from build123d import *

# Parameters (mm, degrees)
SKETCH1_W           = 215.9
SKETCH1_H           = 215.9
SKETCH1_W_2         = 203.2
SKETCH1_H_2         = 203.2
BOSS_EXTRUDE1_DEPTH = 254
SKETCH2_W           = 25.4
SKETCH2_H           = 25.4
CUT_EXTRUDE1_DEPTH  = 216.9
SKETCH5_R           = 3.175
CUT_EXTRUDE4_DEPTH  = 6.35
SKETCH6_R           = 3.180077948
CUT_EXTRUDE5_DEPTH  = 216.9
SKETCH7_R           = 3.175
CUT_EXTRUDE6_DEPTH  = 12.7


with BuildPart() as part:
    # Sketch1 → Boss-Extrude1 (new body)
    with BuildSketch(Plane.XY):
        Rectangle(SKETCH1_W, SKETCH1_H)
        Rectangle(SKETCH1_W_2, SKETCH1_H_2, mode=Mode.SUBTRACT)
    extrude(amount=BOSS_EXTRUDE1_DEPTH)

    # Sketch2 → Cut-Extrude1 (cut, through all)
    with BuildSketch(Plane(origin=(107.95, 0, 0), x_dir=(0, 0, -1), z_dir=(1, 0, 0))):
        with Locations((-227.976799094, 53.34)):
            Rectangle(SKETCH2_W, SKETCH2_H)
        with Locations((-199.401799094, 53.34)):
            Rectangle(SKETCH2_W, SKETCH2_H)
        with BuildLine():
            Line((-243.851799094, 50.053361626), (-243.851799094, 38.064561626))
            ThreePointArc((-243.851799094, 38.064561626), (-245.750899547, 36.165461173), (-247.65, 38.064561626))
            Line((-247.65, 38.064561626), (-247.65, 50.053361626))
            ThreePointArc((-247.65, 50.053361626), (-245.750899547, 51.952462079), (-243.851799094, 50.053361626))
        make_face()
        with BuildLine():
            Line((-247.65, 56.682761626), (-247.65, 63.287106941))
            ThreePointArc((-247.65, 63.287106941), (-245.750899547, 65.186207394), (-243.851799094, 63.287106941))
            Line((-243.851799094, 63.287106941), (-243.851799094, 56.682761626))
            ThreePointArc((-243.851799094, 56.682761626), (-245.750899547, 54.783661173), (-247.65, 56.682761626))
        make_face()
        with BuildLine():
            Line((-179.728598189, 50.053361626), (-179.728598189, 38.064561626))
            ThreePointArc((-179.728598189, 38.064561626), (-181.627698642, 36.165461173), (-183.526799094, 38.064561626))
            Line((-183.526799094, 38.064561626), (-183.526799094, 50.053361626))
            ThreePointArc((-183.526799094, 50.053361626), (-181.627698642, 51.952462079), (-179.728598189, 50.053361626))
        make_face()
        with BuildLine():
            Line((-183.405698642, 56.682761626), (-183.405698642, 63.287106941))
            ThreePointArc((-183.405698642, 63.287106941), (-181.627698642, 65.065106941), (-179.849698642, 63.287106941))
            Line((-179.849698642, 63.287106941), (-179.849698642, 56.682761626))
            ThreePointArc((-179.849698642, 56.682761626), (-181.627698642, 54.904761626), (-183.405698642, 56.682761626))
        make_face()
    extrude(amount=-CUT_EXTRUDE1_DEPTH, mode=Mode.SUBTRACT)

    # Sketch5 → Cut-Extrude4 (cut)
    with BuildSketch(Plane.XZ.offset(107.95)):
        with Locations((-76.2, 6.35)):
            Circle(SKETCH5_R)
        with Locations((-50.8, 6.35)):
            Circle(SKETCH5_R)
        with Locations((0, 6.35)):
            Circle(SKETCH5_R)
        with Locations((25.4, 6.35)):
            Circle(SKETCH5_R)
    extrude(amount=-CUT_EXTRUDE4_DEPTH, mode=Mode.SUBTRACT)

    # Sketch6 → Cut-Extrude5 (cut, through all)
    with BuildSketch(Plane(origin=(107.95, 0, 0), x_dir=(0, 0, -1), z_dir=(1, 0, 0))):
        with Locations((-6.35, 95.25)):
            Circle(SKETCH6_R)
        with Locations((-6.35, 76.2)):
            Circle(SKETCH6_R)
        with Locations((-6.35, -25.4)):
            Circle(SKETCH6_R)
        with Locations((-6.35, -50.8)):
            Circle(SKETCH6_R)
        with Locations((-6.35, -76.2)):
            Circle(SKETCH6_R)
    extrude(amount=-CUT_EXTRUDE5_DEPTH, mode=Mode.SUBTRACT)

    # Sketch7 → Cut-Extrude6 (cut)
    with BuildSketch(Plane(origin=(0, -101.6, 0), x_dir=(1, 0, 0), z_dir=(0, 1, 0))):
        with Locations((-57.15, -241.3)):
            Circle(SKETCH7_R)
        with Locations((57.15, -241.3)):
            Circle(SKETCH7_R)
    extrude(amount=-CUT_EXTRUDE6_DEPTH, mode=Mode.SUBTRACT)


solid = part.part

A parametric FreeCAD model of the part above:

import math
import FreeCAD as App
import Part
import Sketcher
from FreeCAD import Vector
Q = App.Units.Quantity


def add_polygon(sketch, points):
    """Adds a closed chain of lines whose ends are joined by coincident constraints."""
    first, n = sketch.GeometryCount, len(points)
    for a, b in zip(points, points[1:] + points[:1]):
        sketch.addGeometry(Part.LineSegment(App.Vector(*a, 0), App.Vector(*b, 0)), False)
    for i in range(n):
        sketch.addConstraint(Sketcher.Constraint("Coincident", first + i, 2, first + (i + 1) % n, 1))

doc = App.newDocument("Part")
body = doc.addObject("PartDesign::Body", "Body")

# Sketch on XY plane
sketch1 = doc.addObject("Sketcher::SketchObject", "Sketch")
body.addObject(sketch1)
sketch1.AttachmentSupport = (doc.XY_Plane, [""])
sketch1.MapMode = "FlatFace"
add_polygon(sketch1, [(-107.95, 107.95), (-107.95, -107.95), (107.95, -107.95), (107.95, 107.95)])  # lines 0-3
add_polygon(sketch1, [(101.6, -101.6), (-101.6, -101.6), (-101.6, 101.6), (101.6, 101.6)])  # lines 4-7
sketch1.addConstraint([
    Sketcher.Constraint("Vertical", 0),
    Sketcher.Constraint("Horizontal", 1),
    Sketcher.Constraint("Vertical", 2),
    Sketcher.Constraint("Horizontal", 3),
    Sketcher.Constraint("Horizontal", 4),
    Sketcher.Constraint("Vertical", 5),
    Sketcher.Constraint("Horizontal", 6),
    Sketcher.Constraint("Vertical", 7),
    Sketcher.Constraint("Symmetric", 0, 2, 2, 2, -1, 1),
    Sketcher.Constraint("Symmetric", 4, 2, 6, 2, -1, 1),
    Sketcher.Constraint("Equal", 3, 0),
    Sketcher.Constraint("Equal", 6, 5),
    Sketcher.Constraint("DistanceX", 4, 2, 4, 1, Q("8 in")),
    Sketcher.Constraint("DistanceX", 1, 1, 1, 2, Q("8.5 in")),
])
pad1 = doc.addObject("PartDesign::Pad", "Pad")
body.addObject(pad1)
pad1.Profile = sketch1
pad1.Length = Q("10 in")

# Sketch on YZ plane
sketch2 = doc.addObject("Sketcher::SketchObject", "Sketch001")
body.addObject(sketch2)
sketch2.AttachmentSupport = (doc.YZ_Plane, [""])
sketch2.MapMode = "FlatFace"
sketch2.AttachmentOffset = App.Placement(Vector(0, 0, 4.25 * 25.4), App.Rotation())
add_polygon(sketch2, [(66.04, 240.676799), (40.64, 240.676799), (40.64, 215.276799), (66.04, 215.276799)])  # lines 0-3
add_polygon(sketch2, [(66.04, 212.101799), (40.64, 212.101799), (40.64, 186.701799), (66.04, 186.701799)])  # lines 4-7
sketch2.addGeometry(Part.LineSegment(Vector(38.064562, 243.851799, 0), Vector(50.053362, 243.851799, 0)), False)  # 8
sketch2.addGeometry(Part.ArcOfCircle(Part.Circle(Vector(50.053362, 245.7509, 0), Vector(0, 0, 1), 1.8991), math.radians(-90), math.radians(90)), False)  # 9
sketch2.addGeometry(Part.LineSegment(Vector(50.053362, 247.65, 0), Vector(38.064562, 247.65, 0)), False)  # 10
sketch2.addGeometry(Part.ArcOfCircle(Part.Circle(Vector(38.064562, 245.7509, 0), Vector(0, 0, 1), 1.8991), math.radians(90), math.radians(270)), False)  # 11
sketch2.addGeometry(Part.LineSegment(Vector(63.287107, 247.65, 0), Vector(56.682762, 247.65, 0)), False)  # 12
sketch2.addGeometry(Part.ArcOfCircle(Part.Circle(Vector(56.682762, 245.7509, 0), Vector(0, 0, 1), 1.8991), math.radians(90), math.radians(270)), False)  # 13
sketch2.addGeometry(Part.LineSegment(Vector(56.682762, 243.851799, 0), Vector(63.287107, 243.851799, 0)), False)  # 14
sketch2.addGeometry(Part.ArcOfCircle(Part.Circle(Vector(63.287107, 245.7509, 0), Vector(0, 0, 1), 1.8991), math.radians(-90), math.radians(90)), False)  # 15
sketch2.addGeometry(Part.LineSegment(Vector(38.064562, 179.728598, 0), Vector(50.053362, 179.728598, 0)), False)  # 16
sketch2.addGeometry(Part.ArcOfCircle(Part.Circle(Vector(50.053362, 181.627699, 0), Vector(0, 0, 1), 1.8991), math.radians(-90), math.radians(90)), False)  # 17
sketch2.addGeometry(Part.LineSegment(Vector(50.053362, 183.526799, 0), Vector(38.064562, 183.526799, 0)), False)  # 18
sketch2.addGeometry(Part.ArcOfCircle(Part.Circle(Vector(38.064562, 181.627699, 0), Vector(0, 0, 1), 1.8991), math.radians(90), math.radians(270)), False)  # 19
sketch2.addGeometry(Part.LineSegment(Vector(63.287107, 183.405699, 0), Vector(56.682762, 183.405699, 0)), False)  # 20
sketch2.addGeometry(Part.ArcOfCircle(Part.Circle(Vector(56.682762, 181.627699, 0), Vector(0, 0, 1), 1.778), math.radians(90), math.radians(270)), False)  # 21
sketch2.addGeometry(Part.LineSegment(Vector(56.682762, 179.849699, 0), Vector(63.287107, 179.849699, 0)), False)  # 22
sketch2.addGeometry(Part.ArcOfCircle(Part.Circle(Vector(63.287107, 181.627699, 0), Vector(0, 0, 1), 1.778), math.radians(-90), math.radians(90)), False)  # 23
sketch2.addConstraint([
    Sketcher.Constraint("Tangent", 8, 2, 9, 1),
    Sketcher.Constraint("Tangent", 9, 2, 10, 1),
    Sketcher.Constraint("Tangent", 10, 2, 11, 1),
    Sketcher.Constraint("Tangent", 11, 2, 8, 1),
    Sketcher.Constraint("Tangent", 12, 2, 13, 1),
    Sketcher.Constraint("Tangent", 13, 2, 14, 1),
    Sketcher.Constraint("Tangent", 14, 2, 15, 1),
    Sketcher.Constraint("Tangent", 15, 2, 12, 1),
    Sketcher.Constraint("Tangent", 16, 2, 17, 1),
    Sketcher.Constraint("Tangent", 17, 2, 18, 1),
    Sketcher.Constraint("Tangent", 18, 2, 19, 1),
    Sketcher.Constraint("Tangent", 19, 2, 16, 1),
    Sketcher.Constraint("Tangent", 20, 2, 21, 1),
    Sketcher.Constraint("Tangent", 21, 2, 22, 1),
    Sketcher.Constraint("Tangent", 22, 2, 23, 1),
    Sketcher.Constraint("Tangent", 23, 2, 20, 1),
    Sketcher.Constraint("Horizontal", 0),
    Sketcher.Constraint("Vertical", 1),
    Sketcher.Constraint("Horizontal", 2),
    Sketcher.Constraint("Vertical", 3),
    Sketcher.Constraint("Horizontal", 4),
    Sketcher.Constraint("Vertical", 5),
    Sketcher.Constraint("Horizontal", 6),
    Sketcher.Constraint("Vertical", 7),
    Sketcher.Constraint("Horizontal", 8),
    Sketcher.Constraint("Horizontal", 10),
    Sketcher.Constraint("Horizontal", 12),
    Sketcher.Constraint("Horizontal", 14),
    Sketcher.Constraint("Horizontal", 16),
    Sketcher.Constraint("Horizontal", 18),
    Sketcher.Constraint("Horizontal", 20),
    Sketcher.Constraint("Horizontal", 22),
    Sketcher.Constraint("Equal", 11, 13),
    Sketcher.Constraint("Equal", 15, 17),
    Sketcher.Constraint("Horizontal", 11, 3, 13, 3),
    Sketcher.Constraint("Horizontal", 19, 3, 21, 3),
    Sketcher.Constraint("Vertical", 9, 3, 17, 3),
    Sketcher.Constraint("Vertical", 11, 3, 19, 3),
    Sketcher.Constraint("Vertical", 13, 3, 21, 3),
    Sketcher.Constraint("Vertical", 15, 3, 23, 3),
    Sketcher.Constraint("Vertical", 1, 2, 4, 2),
    Sketcher.Constraint("Vertical", 3, 2, 6, 2),
    Sketcher.Constraint("Equal", 6, 1),
    Sketcher.Constraint("Equal", 3, 5),
    Sketcher.Constraint("DistanceX", 0, 2, 0, 1, Q("1 in")),
    Sketcher.Constraint("Radius", 21, Q("0.07 in")),
    Sketcher.Constraint("DistanceX", -1, 1, 0, 2, Q("1.6 in")),
    Sketcher.Constraint("DistanceX", 8, 1, 8, 2, Q("0.472 in")),
    Sketcher.Constraint("DistanceY", -1, 1, 9, 2, Q("9.75 in")),
    Sketcher.Constraint("Radius", 9, Q("1.8991 mm")),
    Sketcher.Constraint("DistanceX", 9, 3, 13, 3, Q("0.261 in")),
    Sketcher.Constraint("DistanceY", 4, 2, 1, 2, Q("0.125 in")),
    Sketcher.Constraint("DistanceY", 0, 2, 8, 2, Q("0.125 in")),
    Sketcher.Constraint("DistanceY", 17, 2, 5, 2, Q("0.125 in")),
    Sketcher.Constraint("DistanceX", 12, 2, 12, 1, Q("6.604345 mm")),
    Sketcher.Constraint("DistanceX", -1, 1, 9, 3, Q("50.053362 mm")),
])
pocket1 = doc.addObject("PartDesign::Pocket", "Pocket")
body.addObject(pocket1)
pocket1.Profile = sketch2
pocket1.Type = "ThroughAll"

# Sketch on XZ plane
sketch3 = doc.addObject("Sketcher::SketchObject", "Sketch002")
body.addObject(sketch3)
sketch3.AttachmentSupport = (doc.XZ_Plane, [""])
sketch3.MapMode = "FlatFace"
sketch3.AttachmentOffset = App.Placement(Vector(0, 0, 4.25 * 25.4), App.Rotation())
sketch3.addGeometry([
    Part.Circle(Vector(-76.2, 6.35, 0), Vector(0, 0, 1), 3.175),
    Part.Circle(Vector(-50.8, 6.35, 0), Vector(0, 0, 1), 3.175),
    Part.Circle(Vector(0, 6.35, 0), Vector(0, 0, 1), 3.175),
    Part.Circle(Vector(25.4, 6.35, 0), Vector(0, 0, 1), 3.175),
], False)
sketch3.addConstraint([
    Sketcher.Constraint("Equal", 0, 1),
    Sketcher.Constraint("Equal", 1, 2),
    Sketcher.Constraint("Equal", 2, 3),
    Sketcher.Constraint("PointOnObject", 2, 3, -2),
    Sketcher.Constraint("Horizontal", 0, 3, 1, 3),
    Sketcher.Constraint("Horizontal", 1, 3, 2, 3),
    Sketcher.Constraint("Horizontal", 2, 3, 3, 3),
    Sketcher.Constraint("Diameter", 0, Q("0.25 in")),
    Sketcher.Constraint("DistanceX", 0, 3, -1, 1, Q("3 in")),
    Sketcher.Constraint("DistanceX", 1, 3, -1, 1, Q("2 in")),
    Sketcher.Constraint("DistanceX", -1, 1, 3, 3, Q("1 in")),
    Sketcher.Constraint("DistanceY", -1, 1, 0, 3, Q("0.25 in")),
])
pocket2 = doc.addObject("PartDesign::Pocket", "Pocket001")
body.addObject(pocket2)
pocket2.Profile = sketch3
pocket2.Length = Q("0.25 in")

# Sketch on YZ plane
sketch4 = doc.addObject("Sketcher::SketchObject", "Sketch003")
body.addObject(sketch4)
sketch4.AttachmentSupport = (doc.YZ_Plane, [""])
sketch4.MapMode = "FlatFace"
sketch4.AttachmentOffset = App.Placement(Vector(0, 0, 4.25 * 25.4), App.Rotation())
sketch4.addGeometry([
    Part.Circle(Vector(95.25, 6.35, 0), Vector(0, 0, 1), 3.180078),  # 0
    Part.Circle(Vector(76.2, 6.35, 0), Vector(0, 0, 1), 3.180078),  # 1
    Part.Circle(Vector(-25.4, 6.35, 0), Vector(0, 0, 1), 3.180078),  # 2
    Part.Circle(Vector(-50.8, 6.35, 0), Vector(0, 0, 1), 3.180078),  # 3
    Part.Circle(Vector(-76.2, 6.35, 0), Vector(0, 0, 1), 3.180078),  # 4
], False)
sketch4.addConstraint([
    Sketcher.Constraint("Equal", 0, 1),
    Sketcher.Constraint("Equal", 1, 2),
    Sketcher.Constraint("Equal", 2, 3),
    Sketcher.Constraint("Equal", 3, 4),
    Sketcher.Constraint("Symmetric", 1, 3, 4, 3, -2),
    Sketcher.Constraint("Horizontal", 0, 3, 1, 3),
    Sketcher.Constraint("Horizontal", 1, 3, 2, 3),
    Sketcher.Constraint("Horizontal", 2, 3, 3, 3),
    Sketcher.Constraint("DistanceX", -1, 1, 1, 3, Q("3 in")),
    Sketcher.Constraint("DistanceX", 2, 3, -1, 1, Q("1 in")),
    Sketcher.Constraint("DistanceX", 3, 3, -1, 1, Q("2 in")),
    Sketcher.Constraint("Diameter", 0, Q("0.2503998 in")),
    Sketcher.Constraint("DistanceX", -1, 1, 0, 3, Q("3.75 in")),
    Sketcher.Constraint("DistanceY", -1, 1, 0, 3, Q("0.25 in")),
])
pocket3 = doc.addObject("PartDesign::Pocket", "Pocket002")
body.addObject(pocket3)
pocket3.Profile = sketch4
pocket3.Type = "ThroughAll"

# Sketch on XZ plane
sketch5 = doc.addObject("Sketcher::SketchObject", "Sketch004")
body.addObject(sketch5)
sketch5.AttachmentSupport = (doc.XZ_Plane, [""])
sketch5.MapMode = "FlatFace"
sketch5.AttachmentOffset = App.Placement(Vector(0, 0, 4 * 25.4), App.Rotation())
sketch5.addGeometry([
    Part.Circle(Vector(-57.15, 241.3, 0), Vector(0, 0, 1), 3.175),
    Part.Circle(Vector(57.15, 241.3, 0), Vector(0, 0, 1), 3.175),
], False)
sketch5.addConstraint([
    Sketcher.Constraint("Equal", 0, 1),
    Sketcher.Constraint("Symmetric", 0, 3, 1, 3, -2),
    Sketcher.Constraint("Diameter", 0, Q("0.25 in")),
    Sketcher.Constraint("DistanceY", -1, 1, 0, 3, Q("9.5 in")),
    Sketcher.Constraint("DistanceX", 0, 3, 1, 3, Q("4.5 in")),
])
pocket4 = doc.addObject("PartDesign::Pocket", "Pocket003")
body.addObject(pocket4)
pocket4.Profile = sketch5
pocket4.Length = Q("0.5 in")
pocket4.Reversed = True

doc.recompute()
